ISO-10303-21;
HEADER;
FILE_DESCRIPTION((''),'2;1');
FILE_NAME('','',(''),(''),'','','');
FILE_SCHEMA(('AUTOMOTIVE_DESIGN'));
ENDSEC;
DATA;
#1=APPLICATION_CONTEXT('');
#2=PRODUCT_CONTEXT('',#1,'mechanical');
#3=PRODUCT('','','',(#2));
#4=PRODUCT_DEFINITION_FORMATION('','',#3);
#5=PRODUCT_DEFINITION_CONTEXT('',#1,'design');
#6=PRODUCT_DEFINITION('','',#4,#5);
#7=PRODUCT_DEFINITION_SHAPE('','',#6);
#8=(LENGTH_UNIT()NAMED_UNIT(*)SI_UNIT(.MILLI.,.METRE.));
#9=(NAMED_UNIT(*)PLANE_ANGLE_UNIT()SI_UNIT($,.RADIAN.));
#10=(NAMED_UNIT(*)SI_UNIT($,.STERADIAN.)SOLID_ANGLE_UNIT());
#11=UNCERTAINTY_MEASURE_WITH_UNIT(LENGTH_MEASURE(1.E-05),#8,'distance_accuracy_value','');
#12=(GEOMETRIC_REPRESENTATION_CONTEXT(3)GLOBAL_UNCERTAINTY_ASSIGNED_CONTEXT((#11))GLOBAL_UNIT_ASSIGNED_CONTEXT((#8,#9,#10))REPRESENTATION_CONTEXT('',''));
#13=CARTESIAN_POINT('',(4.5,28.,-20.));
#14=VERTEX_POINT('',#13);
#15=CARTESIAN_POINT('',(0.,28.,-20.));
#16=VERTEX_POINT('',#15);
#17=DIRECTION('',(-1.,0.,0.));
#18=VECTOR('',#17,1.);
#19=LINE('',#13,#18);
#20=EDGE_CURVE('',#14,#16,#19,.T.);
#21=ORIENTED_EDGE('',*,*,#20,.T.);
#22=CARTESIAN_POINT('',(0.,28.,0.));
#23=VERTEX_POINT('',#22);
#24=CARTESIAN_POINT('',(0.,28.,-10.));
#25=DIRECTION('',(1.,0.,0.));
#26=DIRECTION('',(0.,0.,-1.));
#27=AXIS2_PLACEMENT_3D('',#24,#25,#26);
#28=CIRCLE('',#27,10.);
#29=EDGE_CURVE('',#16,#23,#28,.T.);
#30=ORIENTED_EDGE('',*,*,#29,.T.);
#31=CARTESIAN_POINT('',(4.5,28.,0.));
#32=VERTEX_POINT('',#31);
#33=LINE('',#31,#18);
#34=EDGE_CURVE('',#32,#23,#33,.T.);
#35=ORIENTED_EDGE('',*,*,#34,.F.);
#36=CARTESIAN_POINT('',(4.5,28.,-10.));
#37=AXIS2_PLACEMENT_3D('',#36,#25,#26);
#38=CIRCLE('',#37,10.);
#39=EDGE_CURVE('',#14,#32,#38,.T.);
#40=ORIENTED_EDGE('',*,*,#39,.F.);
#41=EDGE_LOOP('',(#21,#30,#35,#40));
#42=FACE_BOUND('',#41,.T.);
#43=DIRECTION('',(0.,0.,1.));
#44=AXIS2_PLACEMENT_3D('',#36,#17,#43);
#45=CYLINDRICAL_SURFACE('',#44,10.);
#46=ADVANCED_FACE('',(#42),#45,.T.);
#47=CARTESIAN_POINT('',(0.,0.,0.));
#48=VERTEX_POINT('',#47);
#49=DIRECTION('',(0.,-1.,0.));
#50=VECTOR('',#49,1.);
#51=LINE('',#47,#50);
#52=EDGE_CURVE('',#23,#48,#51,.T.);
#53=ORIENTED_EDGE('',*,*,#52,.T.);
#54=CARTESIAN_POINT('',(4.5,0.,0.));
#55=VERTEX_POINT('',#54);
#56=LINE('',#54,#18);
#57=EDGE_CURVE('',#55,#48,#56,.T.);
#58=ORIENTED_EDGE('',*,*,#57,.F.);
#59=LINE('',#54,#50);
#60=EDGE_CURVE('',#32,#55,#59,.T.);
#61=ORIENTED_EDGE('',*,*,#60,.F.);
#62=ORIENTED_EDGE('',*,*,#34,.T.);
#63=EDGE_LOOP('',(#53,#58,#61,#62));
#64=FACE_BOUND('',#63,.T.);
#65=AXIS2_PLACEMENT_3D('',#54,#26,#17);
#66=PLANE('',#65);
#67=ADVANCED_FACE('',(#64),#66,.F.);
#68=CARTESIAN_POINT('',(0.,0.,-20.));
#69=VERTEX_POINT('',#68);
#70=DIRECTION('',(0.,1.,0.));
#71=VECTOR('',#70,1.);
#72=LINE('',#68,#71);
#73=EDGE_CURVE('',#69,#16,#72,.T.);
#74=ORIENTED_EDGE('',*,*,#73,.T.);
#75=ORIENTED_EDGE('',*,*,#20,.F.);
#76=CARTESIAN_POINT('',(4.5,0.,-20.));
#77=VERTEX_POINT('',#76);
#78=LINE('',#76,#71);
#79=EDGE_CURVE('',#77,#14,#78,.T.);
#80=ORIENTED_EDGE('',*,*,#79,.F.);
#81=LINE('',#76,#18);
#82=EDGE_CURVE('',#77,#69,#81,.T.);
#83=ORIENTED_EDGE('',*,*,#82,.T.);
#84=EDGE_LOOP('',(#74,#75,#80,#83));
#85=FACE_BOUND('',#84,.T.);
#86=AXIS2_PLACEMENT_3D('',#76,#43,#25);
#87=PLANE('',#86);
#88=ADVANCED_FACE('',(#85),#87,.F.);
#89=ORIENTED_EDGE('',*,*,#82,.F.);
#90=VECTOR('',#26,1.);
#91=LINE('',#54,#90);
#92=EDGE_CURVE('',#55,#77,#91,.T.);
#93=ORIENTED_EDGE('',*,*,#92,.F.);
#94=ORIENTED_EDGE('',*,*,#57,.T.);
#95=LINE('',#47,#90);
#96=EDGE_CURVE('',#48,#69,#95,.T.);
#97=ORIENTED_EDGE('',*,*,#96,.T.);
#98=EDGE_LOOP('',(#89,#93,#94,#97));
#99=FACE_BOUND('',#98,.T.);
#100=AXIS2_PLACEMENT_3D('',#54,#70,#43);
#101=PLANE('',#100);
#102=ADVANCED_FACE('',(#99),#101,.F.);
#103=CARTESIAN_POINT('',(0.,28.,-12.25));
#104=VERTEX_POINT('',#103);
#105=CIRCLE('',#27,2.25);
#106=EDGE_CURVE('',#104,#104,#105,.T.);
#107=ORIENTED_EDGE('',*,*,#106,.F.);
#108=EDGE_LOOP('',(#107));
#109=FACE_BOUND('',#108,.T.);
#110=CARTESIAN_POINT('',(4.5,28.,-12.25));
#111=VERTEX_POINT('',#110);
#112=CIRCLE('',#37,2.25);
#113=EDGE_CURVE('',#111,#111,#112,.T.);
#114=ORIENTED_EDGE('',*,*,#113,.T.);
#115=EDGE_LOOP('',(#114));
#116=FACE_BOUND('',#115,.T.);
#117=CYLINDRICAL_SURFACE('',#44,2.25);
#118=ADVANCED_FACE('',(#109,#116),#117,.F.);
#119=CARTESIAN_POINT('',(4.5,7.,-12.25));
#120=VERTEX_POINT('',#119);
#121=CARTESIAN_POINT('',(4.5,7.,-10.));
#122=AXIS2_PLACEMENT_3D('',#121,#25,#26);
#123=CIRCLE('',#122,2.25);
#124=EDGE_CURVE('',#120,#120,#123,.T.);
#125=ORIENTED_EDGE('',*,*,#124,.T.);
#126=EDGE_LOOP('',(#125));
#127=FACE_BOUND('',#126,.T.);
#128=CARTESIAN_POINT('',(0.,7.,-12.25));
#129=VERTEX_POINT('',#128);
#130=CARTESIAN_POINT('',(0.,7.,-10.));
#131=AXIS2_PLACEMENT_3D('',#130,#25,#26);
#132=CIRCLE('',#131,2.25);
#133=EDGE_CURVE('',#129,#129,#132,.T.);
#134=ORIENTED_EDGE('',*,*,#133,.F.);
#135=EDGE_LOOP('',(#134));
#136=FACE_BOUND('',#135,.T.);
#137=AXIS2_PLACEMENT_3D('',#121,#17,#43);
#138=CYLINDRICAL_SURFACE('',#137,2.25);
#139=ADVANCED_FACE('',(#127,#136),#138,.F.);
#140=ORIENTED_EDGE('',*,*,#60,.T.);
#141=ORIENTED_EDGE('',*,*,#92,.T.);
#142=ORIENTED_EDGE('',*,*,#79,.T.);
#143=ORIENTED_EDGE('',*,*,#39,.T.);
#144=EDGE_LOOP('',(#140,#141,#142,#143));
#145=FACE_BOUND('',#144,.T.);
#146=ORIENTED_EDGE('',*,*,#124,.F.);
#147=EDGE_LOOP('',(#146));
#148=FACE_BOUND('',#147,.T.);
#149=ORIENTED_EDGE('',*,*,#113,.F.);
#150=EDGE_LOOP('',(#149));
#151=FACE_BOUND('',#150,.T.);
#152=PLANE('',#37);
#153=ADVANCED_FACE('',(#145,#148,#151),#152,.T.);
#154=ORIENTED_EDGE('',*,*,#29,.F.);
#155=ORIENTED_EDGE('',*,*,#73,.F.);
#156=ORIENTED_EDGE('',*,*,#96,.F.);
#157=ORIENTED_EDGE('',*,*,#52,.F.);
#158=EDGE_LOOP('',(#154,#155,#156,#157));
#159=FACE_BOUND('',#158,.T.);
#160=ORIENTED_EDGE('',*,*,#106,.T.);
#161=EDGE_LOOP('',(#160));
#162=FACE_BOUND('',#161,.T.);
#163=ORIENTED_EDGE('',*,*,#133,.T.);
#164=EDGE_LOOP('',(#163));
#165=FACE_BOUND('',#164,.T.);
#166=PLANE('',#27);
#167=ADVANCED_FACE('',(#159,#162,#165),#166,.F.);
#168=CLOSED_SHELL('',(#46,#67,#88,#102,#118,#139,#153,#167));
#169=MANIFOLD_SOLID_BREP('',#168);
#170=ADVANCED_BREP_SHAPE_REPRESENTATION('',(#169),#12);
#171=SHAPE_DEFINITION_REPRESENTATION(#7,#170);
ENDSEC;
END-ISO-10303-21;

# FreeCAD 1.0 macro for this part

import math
import FreeCAD as App
import Part
import Sketcher
from FreeCAD import Vector
Q = App.Units.Quantity

doc = App.newDocument("Part")
params = doc.addObject("Spreadsheet::Sheet", "Params")
for row, (alias, value) in enumerate([
    ("sketch1_radius", "10 mm"),
    ("sketch1_diameter", "4.5 mm"),
    ("sketch1_width", "28 mm"),
    ("pad1_length", "4.5 mm"),
], start=1):
    params.set(f"A{row}", alias)
    params.set(f"B{row}", "=" + value)
    params.setAlias(f"B{row}", alias)

body = doc.addObject("PartDesign::Body", "Body")

# Sketch on YZ plane
sketch1 = body.newObject("Sketcher::SketchObject", "Sketch")
sketch1.AttachmentSupport = (doc.getObject("YZ_Plane"), [""])
sketch1.MapMode = "FlatFace"
sketch1.addGeometry([
    Part.LineSegment(Vector(0, 0, 0), Vector(0, -20, 0)),  # 0
    Part.LineSegment(Vector(0, -20, 0), Vector(28, -20, 0)),  # 1
    Part.ArcOfCircle(Part.Circle(Vector(28, -10, 0), Vector(0, 0, 1), 10), math.radians(-90), math.radians(90)),  # 2
    Part.LineSegment(Vector(28, 0, 0), Vector(0, 0, 0)),  # 3
    Part.Circle(Vector(7, -10, 0), Vector(0, 0, 1), 2.25),  # 4
    Part.Circle(Vector(28, -10, 0), Vector(0, 0, 1), 2.25),  # 5
], False)
sketch1.addConstraint([
    Sketcher.Constraint("Coincident", 0, 2, 1, 1),
    Sketcher.Constraint("Tangent", 1, 2, 2, 1),
    Sketcher.Constraint("Tangent", 2, 2, 3, 1),
    Sketcher.Constraint("Coincident", 3, 2, 0, 1),
    Sketcher.Constraint("Vertical", 0),
    Sketcher.Constraint("Horizontal", 1),
    Sketcher.Constraint("Horizontal", 3),
    Sketcher.Constraint("Coincident", 3, 2, -1, 1),
    Sketcher.Constraint("Coincident", 5, 3, 2, 3),
    Sketcher.Constraint("Equal", 4, 5),
    Sketcher.Constraint("Horizontal", 2, 3, 4, 3),
    Sketcher.Constraint("Radius", 2, Q("10 mm")),
    Sketcher.Constraint("Diameter", 4, Q("4.5 mm")),
    Sketcher.Constraint("DistanceX", 1, 1, 1, 2, Q("28 mm")),
    Sketcher.Constraint("DistanceX", -1, 1, 4, 3, Q("7 mm")),
])
sketch1.setExpression("Constraints[11]", "Params.sketch1_radius")
sketch1.setExpression("Constraints[12]", "Params.sketch1_diameter")
sketch1.setExpression("Constraints[13]", "Params.sketch1_width")
pad1 = body.newObject("PartDesign::Pad", "Pad")
pad1.Profile = sketch1
pad1.setExpression("Length", "Params.pad1_length")

doc.recompute()
